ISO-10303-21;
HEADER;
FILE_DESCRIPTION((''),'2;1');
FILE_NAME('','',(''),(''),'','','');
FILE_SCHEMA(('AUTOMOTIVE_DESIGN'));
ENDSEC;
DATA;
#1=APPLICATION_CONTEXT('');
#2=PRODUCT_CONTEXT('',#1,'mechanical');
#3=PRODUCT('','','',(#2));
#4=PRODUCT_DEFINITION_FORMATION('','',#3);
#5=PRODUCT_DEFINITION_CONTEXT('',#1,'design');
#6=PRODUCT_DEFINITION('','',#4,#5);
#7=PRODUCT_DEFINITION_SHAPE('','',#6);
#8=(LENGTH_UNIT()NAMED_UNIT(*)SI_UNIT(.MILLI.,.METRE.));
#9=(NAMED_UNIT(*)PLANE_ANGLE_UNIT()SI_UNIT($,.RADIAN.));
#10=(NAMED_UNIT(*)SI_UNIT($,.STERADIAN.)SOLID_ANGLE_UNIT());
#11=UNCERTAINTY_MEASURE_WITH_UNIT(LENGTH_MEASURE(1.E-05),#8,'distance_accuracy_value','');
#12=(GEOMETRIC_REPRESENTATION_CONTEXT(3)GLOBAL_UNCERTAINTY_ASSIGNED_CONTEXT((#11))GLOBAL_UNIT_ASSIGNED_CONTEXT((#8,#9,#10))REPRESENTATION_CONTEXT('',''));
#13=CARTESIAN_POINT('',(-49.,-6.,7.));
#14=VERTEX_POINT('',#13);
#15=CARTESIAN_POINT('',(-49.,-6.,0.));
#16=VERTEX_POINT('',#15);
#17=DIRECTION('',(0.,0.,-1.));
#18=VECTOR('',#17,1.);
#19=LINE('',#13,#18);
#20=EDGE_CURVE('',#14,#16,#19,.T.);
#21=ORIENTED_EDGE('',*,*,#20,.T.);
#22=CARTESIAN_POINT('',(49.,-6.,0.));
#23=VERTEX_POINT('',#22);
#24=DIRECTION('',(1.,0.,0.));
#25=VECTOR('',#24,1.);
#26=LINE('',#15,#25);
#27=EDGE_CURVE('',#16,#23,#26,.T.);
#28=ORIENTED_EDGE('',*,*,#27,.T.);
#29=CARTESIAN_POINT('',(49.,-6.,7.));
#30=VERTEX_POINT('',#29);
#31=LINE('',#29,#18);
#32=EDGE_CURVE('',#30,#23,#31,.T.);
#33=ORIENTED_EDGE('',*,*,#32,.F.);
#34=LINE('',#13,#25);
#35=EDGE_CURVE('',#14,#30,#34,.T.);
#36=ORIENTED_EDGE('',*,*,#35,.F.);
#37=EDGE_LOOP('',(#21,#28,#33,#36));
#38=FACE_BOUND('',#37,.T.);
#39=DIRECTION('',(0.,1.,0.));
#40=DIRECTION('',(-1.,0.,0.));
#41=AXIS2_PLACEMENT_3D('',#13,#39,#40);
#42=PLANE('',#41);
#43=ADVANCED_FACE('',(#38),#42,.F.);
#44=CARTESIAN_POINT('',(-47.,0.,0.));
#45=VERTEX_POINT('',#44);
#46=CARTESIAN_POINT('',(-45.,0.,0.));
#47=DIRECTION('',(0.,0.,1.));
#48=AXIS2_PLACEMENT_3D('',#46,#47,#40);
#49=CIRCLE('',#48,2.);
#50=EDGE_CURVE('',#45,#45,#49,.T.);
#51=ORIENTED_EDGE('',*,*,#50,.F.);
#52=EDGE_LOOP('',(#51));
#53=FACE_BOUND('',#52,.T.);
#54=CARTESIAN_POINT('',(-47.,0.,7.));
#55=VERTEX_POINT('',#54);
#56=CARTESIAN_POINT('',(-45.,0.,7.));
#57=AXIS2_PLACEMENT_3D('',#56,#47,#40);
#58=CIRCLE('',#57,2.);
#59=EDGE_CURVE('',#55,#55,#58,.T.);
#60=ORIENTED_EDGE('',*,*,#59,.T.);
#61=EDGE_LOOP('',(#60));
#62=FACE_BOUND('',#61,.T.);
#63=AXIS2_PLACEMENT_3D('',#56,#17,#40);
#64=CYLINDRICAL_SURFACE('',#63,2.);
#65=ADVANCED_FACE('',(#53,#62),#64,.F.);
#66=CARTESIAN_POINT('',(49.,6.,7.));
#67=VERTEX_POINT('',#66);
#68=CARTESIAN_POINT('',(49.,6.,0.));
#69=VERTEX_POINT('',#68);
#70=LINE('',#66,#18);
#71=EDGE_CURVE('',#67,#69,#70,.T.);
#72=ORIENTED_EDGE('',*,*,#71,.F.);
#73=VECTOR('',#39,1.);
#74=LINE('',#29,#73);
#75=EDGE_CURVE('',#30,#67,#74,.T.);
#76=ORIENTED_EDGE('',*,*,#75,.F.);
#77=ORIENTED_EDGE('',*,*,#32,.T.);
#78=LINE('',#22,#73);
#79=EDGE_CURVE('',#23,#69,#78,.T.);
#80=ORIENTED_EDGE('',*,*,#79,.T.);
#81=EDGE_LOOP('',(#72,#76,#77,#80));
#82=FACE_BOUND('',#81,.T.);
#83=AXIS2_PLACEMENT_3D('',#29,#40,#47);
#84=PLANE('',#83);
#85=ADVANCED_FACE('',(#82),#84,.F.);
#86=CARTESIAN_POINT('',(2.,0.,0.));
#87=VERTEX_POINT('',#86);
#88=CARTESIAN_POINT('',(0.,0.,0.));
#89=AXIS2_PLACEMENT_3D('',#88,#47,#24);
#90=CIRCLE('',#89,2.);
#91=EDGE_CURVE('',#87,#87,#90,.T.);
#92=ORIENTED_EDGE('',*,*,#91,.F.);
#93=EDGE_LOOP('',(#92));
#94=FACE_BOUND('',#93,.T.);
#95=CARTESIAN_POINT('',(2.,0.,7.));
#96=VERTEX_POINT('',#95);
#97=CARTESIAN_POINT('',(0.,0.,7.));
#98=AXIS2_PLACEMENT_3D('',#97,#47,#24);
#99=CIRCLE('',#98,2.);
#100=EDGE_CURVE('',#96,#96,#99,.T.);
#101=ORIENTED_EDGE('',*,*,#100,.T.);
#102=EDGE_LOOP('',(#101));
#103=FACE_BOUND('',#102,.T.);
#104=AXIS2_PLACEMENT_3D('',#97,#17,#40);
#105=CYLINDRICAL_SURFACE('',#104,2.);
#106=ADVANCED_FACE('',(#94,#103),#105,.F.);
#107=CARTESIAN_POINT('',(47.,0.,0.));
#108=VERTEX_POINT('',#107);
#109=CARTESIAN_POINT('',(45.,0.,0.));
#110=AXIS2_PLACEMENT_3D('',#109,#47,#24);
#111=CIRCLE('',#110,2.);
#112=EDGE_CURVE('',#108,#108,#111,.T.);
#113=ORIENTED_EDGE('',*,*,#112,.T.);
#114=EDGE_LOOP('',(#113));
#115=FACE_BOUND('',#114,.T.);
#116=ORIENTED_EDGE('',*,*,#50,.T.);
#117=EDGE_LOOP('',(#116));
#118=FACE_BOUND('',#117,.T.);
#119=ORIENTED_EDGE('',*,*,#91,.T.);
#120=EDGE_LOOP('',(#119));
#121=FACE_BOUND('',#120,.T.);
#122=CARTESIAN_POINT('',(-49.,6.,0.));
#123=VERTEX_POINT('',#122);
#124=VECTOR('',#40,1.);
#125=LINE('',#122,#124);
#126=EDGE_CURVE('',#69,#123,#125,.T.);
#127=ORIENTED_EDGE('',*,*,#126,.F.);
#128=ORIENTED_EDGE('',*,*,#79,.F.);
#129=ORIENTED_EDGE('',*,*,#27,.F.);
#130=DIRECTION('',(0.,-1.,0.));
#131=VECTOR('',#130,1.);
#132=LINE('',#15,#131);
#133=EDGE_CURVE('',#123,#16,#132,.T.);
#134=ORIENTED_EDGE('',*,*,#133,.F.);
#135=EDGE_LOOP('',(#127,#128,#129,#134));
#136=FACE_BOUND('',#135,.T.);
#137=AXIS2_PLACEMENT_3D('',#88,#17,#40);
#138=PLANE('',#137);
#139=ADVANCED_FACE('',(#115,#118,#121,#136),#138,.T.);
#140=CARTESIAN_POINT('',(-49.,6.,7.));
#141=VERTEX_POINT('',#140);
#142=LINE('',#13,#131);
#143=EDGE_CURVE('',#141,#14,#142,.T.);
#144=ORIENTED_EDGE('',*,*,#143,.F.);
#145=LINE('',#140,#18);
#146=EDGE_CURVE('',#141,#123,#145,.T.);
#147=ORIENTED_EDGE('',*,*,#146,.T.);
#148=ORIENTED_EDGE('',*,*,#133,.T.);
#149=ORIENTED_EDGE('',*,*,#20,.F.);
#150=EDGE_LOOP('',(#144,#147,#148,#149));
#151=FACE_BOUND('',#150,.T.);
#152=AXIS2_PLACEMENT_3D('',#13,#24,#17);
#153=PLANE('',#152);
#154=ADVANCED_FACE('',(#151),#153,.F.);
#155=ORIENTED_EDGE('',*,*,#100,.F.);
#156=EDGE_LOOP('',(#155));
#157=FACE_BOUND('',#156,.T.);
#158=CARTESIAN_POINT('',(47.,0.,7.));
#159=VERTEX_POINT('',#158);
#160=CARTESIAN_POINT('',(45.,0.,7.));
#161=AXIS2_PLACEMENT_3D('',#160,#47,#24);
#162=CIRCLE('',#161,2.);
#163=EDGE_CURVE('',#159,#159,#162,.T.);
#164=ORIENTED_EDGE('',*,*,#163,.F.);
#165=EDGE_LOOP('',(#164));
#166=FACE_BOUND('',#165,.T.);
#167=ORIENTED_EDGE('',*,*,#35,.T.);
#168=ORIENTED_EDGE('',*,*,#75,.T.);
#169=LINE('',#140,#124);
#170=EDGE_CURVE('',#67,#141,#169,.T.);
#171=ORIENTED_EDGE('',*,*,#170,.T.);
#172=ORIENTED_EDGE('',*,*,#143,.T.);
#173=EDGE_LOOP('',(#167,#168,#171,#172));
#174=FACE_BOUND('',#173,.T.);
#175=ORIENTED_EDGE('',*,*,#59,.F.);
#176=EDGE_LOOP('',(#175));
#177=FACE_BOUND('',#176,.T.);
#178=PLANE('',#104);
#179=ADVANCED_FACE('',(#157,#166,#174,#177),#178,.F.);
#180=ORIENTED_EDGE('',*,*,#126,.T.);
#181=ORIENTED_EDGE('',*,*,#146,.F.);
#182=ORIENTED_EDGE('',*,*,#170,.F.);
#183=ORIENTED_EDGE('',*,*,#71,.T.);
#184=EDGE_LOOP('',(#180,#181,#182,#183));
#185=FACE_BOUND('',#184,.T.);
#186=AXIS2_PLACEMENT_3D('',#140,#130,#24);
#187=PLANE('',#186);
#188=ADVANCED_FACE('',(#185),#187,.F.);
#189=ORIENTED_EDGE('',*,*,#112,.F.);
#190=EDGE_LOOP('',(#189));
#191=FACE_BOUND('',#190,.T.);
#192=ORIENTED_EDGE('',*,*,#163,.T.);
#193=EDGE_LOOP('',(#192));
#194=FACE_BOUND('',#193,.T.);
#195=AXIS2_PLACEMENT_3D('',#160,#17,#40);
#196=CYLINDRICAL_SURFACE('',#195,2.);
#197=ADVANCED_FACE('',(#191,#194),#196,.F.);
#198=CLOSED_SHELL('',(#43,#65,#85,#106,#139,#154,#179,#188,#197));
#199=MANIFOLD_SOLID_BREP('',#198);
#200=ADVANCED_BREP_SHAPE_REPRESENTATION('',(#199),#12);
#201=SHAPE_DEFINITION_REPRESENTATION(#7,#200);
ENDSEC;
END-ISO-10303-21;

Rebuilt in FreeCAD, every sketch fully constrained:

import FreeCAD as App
import Part
import Sketcher

V = App.Vector


def add_polygon(sketch, points):
    """Adds a closed chain of lines whose ends are joined by coincident constraints."""
    first, n = sketch.GeometryCount, len(points)
    for a, b in zip(points, points[1:] + points[:1]):
        sketch.addGeometry(Part.LineSegment(App.Vector(*a, 0), App.Vector(*b, 0)), False)
    for i in range(n):
        sketch.addConstraint(Sketcher.Constraint("Coincident", first + i, 2, first + (i + 1) % n, 1))

doc = App.newDocument("Part")
body = doc.addObject("PartDesign::Body", "Body")

# Sketch on XY plane
sketch1 = body.newObject("Sketcher::SketchObject", "Sketch")
sketch1.AttachmentSupport = (doc.getObject("XY_Plane"), [""])
sketch1.MapMode = "FlatFace"
add_polygon(sketch1, [(-49, 6), (-49, -6), (49, -6), (49, 6)])  # lines 0-3
sketch1.addGeometry(Part.Circle(V(-45, 0, 0), V(0, 0, 1), 2), False)  # 4
sketch1.addGeometry(Part.Circle(V(0, 0, 0), V(0, 0, 1), 2), False)  # 5
sketch1.addGeometry(Part.Circle(V(45, 0, 0), V(0, 0, 1), 2), False)  # 6
sketch1.addConstraint(Sketcher.Constraint("Vertical", 0))
sketch1.addConstraint(Sketcher.Constraint("Horizontal", 1))
sketch1.addConstraint(Sketcher.Constraint("Vertical", 2))
sketch1.addConstraint(Sketcher.Constraint("Horizontal", 3))
sketch1.addConstraint(Sketcher.Constraint("Coincident", 5, 3, -1, 1))
sketch1.addConstraint(Sketcher.Constraint("Equal", 4, 5))
sketch1.addConstraint(Sketcher.Constraint("Equal", 5, 6))
sketch1.addConstraint(Sketcher.Constraint("Symmetric", 4, 3, 6, 3, -1, 1))
sketch1.addConstraint(Sketcher.Constraint("Symmetric", 0, 2, 2, 2, -1, 1))
sketch1.addConstraint(Sketcher.Constraint("PointOnObject", 4, 3, -1))
sketch1.addConstraint(Sketcher.Constraint("Diameter", 4, 4.0))
sketch1.addConstraint(Sketcher.Constraint("DistanceX", 1, 1, 1, 2, 98.0))
sketch1.addConstraint(Sketcher.Constraint("DistanceY", 0, 2, 0, 1, 12.0))
sketch1.addConstraint(Sketcher.Constraint("DistanceX", 4, 3, -1, 1, 45.0))
pad1 = body.newObject("PartDesign::Pad", "Pad")
pad1.Profile = sketch1
pad1.Length = 7

doc.recompute()
